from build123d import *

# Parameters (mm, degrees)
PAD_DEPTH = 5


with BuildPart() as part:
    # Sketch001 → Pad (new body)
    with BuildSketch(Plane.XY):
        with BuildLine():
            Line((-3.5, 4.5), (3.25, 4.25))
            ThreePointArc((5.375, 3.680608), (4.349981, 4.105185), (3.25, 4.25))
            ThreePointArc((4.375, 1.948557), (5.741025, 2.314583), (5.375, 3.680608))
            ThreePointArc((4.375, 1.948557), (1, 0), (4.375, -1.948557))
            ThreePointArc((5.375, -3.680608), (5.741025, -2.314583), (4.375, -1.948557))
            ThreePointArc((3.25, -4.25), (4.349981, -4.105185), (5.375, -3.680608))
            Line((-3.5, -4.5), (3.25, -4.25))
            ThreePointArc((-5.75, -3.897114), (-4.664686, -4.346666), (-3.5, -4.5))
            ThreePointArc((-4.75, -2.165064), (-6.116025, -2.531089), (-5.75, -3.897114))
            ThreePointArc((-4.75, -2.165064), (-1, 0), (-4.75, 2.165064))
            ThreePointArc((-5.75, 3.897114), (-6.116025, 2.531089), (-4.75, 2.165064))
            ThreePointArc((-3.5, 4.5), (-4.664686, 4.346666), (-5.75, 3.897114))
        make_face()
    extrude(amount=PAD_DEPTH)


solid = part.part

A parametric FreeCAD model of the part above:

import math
import FreeCAD as App
import Part
import Sketcher

V = App.Vector
Q = App.Units.Quantity

doc = App.newDocument("Part")
body = doc.addObject("PartDesign::Body", "Body")

# Sketch on XY plane
sketch1 = body.newObject("Sketcher::SketchObject", "Sketch")
sketch1.AttachmentSupport = (doc.getObject("XY_Plane"), [""])
sketch1.MapMode = "FlatFace"
sketch1.addGeometry(Part.LineSegment(V(3.2, 4.2, 0), V(-3.5, 4.5, 0)), False)
sketch1.addGeometry(Part.ArcOfCircle(Part.Circle(V(-3.5, 0, 0), V(0, 0, 1), 4.5), math.radians(90), math.radians(120)), False)
sketch1.addGeometry(Part.ArcOfCircle(Part.Circle(V(-5.2, 3, 0), V(0, 0, 1), 1), math.radians(120), math.radians(300)), False)
sketch1.addGeometry(Part.ArcOfCircle(Part.Circle(V(-3.5, 0, 0), V(0, 0, 1), 2.5), math.radians(-120), math.radians(120)), False)
sketch1.addGeometry(Part.ArcOfCircle(Part.Circle(V(-5.2, -3, 0), V(0, 0, 1), 1), math.radians(60), math.radians(240)), False)
sketch1.addGeometry(Part.ArcOfCircle(Part.Circle(V(-3.5, 0, 0), V(0, 0, 1), 4.5), math.radians(-120), math.radians(-90)), False)
sketch1.addGeometry(Part.LineSegment(V(-3.5, -4.5, 0), V(3.2, -4.2, 0)), False)
sketch1.addGeometry(Part.ArcOfCircle(Part.Circle(V(3.3, 0, 0), V(0, 0, 1), 4.2), math.radians(-90), math.radians(-60)), False)
sketch1.addGeometry(Part.ArcOfCircle(Part.Circle(V(4.9, -2.8, 0), V(0, 0, 1), 1), math.radians(-60), math.radians(120)), False)
sketch1.addGeometry(Part.ArcOfCircle(Part.Circle(V(3.2, 0, 0), V(0, 0, 1), 2.2), math.radians(60), math.radians(300)), False)
sketch1.addGeometry(Part.ArcOfCircle(Part.Circle(V(4.9, 2.8, 0), V(0, 0, 1), 1), math.radians(-120), math.radians(60)), False)
sketch1.addGeometry(Part.ArcOfCircle(Part.Circle(V(3.3, 0, 0), V(0, 0, 1), 4.2), math.radians(60), math.radians(90)), False)
sketch1.addConstraint(Sketcher.Constraint("Coincident", 0, 2, 1, 1))
sketch1.addConstraint(Sketcher.Constraint("Tangent", 1, 2, 2, 1))
sketch1.addConstraint(Sketcher.Constraint("Tangent", 2, 2, 3, 2))
sketch1.addConstraint(Sketcher.Constraint("Tangent", 3, 1, 4, 1))
sketch1.addConstraint(Sketcher.Constraint("Tangent", 4, 2, 5, 1))
sketch1.addConstraint(Sketcher.Constraint("Coincident", 5, 2, 6, 1))
sketch1.addConstraint(Sketcher.Constraint("Coincident", 6, 2, 7, 1))
sketch1.addConstraint(Sketcher.Constraint("Tangent", 7, 2, 8, 1))
sketch1.addConstraint(Sketcher.Constraint("Tangent", 8, 2, 9, 2))
sketch1.addConstraint(Sketcher.Constraint("Tangent", 9, 1, 10, 1))
sketch1.addConstraint(Sketcher.Constraint("Tangent", 10, 2, 11, 1))
sketch1.addConstraint(Sketcher.Constraint("Coincident", 11, 2, 0, 1))
sketch1.addConstraint(Sketcher.Constraint("Coincident", 3, 3, 1, 3))
sketch1.addConstraint(Sketcher.Constraint("Coincident", 5, 3, 1, 3))
sketch1.addConstraint(Sketcher.Constraint("Coincident", 9, 3, 7, 3))
sketch1.addConstraint(Sketcher.Constraint("Coincident", 11, 3, 9, 3))
sketch1.addConstraint(Sketcher.Constraint("Equal", 2, 4))
sketch1.addConstraint(Sketcher.Constraint("Equal", 4, 8))
sketch1.addConstraint(Sketcher.Constraint("Equal", 8, 10))
sketch1.addConstraint(Sketcher.Constraint("Symmetric", 2, 3, 4, 3, -1))
sketch1.addConstraint(Sketcher.Constraint("Symmetric", 8, 3, 10, 3, -1))
sketch1.addConstraint(Sketcher.Constraint("Vertical", 5, 3, 0, 2))
sketch1.addConstraint(Sketcher.Constraint("Vertical", 0, 2, 5, 2))
sketch1.addConstraint(Sketcher.Constraint("Vertical", 11, 3, 6, 2))
sketch1.addConstraint(Sketcher.Constraint("Vertical", 6, 2, 11, 2))
sketch1.addConstraint(Sketcher.Constraint("Radius", 2, Q("1 mm")))
sketch1.addConstraint(Sketcher.Constraint("Radius", 1, Q("4.5 mm")))
sketch1.addConstraint(Sketcher.Constraint("Radius", 9, Q("2.25 mm")))
sketch1.addConstraint(Sketcher.Constraint("DistanceX", 1, 2, 2, 2, Q("1 mm")))
sketch1.addConstraint(Sketcher.Constraint("DistanceX", 8, 2, 7, 2, Q("1 mm")))
sketch1.addConstraint(Sketcher.Constraint("DistanceX", 1, 3, -1, 1, Q("3.5 mm")))
sketch1.addConstraint(Sketcher.Constraint("DistanceX", 4, 3, 7, 3, Q("8.500002 mm")))
pad1 = body.newObject("PartDesign::Pad", "Pad")
pad1.Profile = sketch1
pad1.Length = 5

doc.recompute()
